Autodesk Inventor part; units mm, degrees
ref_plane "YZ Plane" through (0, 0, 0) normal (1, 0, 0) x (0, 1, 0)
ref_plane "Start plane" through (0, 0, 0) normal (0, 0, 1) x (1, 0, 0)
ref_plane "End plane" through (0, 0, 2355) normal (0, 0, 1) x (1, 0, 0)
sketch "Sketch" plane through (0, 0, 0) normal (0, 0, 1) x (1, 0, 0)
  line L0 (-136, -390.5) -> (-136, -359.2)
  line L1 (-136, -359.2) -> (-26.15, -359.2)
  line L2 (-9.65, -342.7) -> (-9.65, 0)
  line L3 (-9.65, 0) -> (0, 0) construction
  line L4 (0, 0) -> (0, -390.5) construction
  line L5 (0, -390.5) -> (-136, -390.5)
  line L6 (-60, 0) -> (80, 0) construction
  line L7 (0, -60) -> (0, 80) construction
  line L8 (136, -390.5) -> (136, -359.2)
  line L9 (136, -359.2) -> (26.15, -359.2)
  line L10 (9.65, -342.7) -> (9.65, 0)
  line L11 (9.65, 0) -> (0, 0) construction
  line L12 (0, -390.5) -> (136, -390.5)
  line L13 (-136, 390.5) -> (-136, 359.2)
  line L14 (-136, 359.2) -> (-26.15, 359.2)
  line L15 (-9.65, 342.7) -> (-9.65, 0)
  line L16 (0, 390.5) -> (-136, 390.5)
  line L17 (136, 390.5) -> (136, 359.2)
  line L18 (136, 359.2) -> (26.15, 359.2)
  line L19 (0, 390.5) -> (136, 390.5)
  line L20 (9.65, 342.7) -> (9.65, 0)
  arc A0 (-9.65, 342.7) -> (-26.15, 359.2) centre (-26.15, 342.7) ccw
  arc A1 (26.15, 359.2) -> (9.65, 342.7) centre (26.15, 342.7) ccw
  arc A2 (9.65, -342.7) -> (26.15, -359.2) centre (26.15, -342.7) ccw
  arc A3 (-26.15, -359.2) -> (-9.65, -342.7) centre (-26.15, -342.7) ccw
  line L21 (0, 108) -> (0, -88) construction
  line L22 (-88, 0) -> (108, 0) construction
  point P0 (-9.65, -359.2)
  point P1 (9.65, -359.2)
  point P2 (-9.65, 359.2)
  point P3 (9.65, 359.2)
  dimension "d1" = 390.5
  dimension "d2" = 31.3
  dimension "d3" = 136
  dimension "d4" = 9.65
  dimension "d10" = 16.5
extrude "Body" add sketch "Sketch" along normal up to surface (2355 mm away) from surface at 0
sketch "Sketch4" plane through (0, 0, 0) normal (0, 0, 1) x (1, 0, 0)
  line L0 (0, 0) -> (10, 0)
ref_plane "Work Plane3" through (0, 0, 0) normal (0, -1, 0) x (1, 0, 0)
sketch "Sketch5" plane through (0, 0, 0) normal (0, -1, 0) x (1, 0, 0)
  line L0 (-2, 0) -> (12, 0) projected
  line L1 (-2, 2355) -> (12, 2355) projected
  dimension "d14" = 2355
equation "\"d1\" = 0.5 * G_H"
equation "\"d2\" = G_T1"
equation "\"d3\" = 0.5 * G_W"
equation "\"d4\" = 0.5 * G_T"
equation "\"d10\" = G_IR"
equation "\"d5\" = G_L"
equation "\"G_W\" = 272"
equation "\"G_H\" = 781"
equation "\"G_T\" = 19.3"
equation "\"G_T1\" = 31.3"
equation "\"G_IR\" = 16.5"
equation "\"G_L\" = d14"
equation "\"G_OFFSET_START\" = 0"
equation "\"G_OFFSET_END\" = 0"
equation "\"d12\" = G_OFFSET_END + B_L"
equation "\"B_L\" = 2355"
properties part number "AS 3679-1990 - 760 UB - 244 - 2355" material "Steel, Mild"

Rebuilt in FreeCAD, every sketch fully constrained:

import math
import FreeCAD as App
import Part
import Sketcher
from FreeCAD import Vector
Q = App.Units.Quantity

doc = App.newDocument("Part")
body = doc.addObject("PartDesign::Body", "Body")

sketch1 = body.newObject("Sketcher::SketchObject", "Sketch")
sketch1.AttachmentSupport = (doc.getObject("XY_Plane"), [""])
sketch1.MapMode = "FlatFace"
sketch1.addGeometry([
    Part.LineSegment(Vector(-136, -359.2, 0), Vector(-136, -390.5, 0)),
    Part.LineSegment(Vector(-136, -390.5, 0), Vector(136, -390.5, 0)),
    Part.LineSegment(Vector(136, -390.5, 0), Vector(136, -359.2, 0)),
    Part.LineSegment(Vector(136, -359.2, 0), Vector(26.15, -359.2, 0)),
    Part.ArcOfCircle(Part.Circle(Vector(26.15, -342.7, 0), Vector(0, 0, 1), 16.5), math.radians(180), math.radians(270)),
    Part.LineSegment(Vector(9.65, -342.7, 0), Vector(9.65, 342.7, 0)),
    Part.ArcOfCircle(Part.Circle(Vector(26.15, 342.7, 0), Vector(0, 0, 1), 16.5), math.radians(90), math.radians(180)),
    Part.LineSegment(Vector(26.15, 359.2, 0), Vector(136, 359.2, 0)),
    Part.LineSegment(Vector(136, 359.2, 0), Vector(136, 390.5, 0)),
    Part.LineSegment(Vector(136, 390.5, 0), Vector(-136, 390.5, 0)),
    Part.LineSegment(Vector(-136, 390.5, 0), Vector(-136, 359.2, 0)),
    Part.LineSegment(Vector(-136, 359.2, 0), Vector(-26.15, 359.2, 0)),
    Part.ArcOfCircle(Part.Circle(Vector(-26.15, 342.7, 0), Vector(0, 0, 1), 16.5), math.radians(0), math.radians(90)),
    Part.LineSegment(Vector(-9.65, 342.7, 0), Vector(-9.65, -342.7, 0)),
    Part.ArcOfCircle(Part.Circle(Vector(-26.15, -342.7, 0), Vector(0, 0, 1), 16.5), math.radians(-90), math.radians(0)),
    Part.LineSegment(Vector(-26.15, -359.2, 0), Vector(-136, -359.2, 0)),
], False)
sketch1.addConstraint([
    Sketcher.Constraint("Coincident", 0, 2, 1, 1),
    Sketcher.Constraint("Coincident", 1, 2, 2, 1),
    Sketcher.Constraint("Coincident", 2, 2, 3, 1),
    Sketcher.Constraint("Tangent", 3, 2, 4, 2),
    Sketcher.Constraint("Tangent", 4, 1, 5, 1),
    Sketcher.Constraint("Tangent", 5, 2, 6, 2),
    Sketcher.Constraint("Tangent", 6, 1, 7, 1),
    Sketcher.Constraint("Coincident", 7, 2, 8, 1),
    Sketcher.Constraint("Coincident", 8, 2, 9, 1),
    Sketcher.Constraint("Coincident", 9, 2, 10, 1),
    Sketcher.Constraint("Coincident", 10, 2, 11, 1),
    Sketcher.Constraint("Tangent", 11, 2, 12, 2),
    Sketcher.Constraint("Tangent", 12, 1, 13, 1),
    Sketcher.Constraint("Tangent", 13, 2, 14, 2),
    Sketcher.Constraint("Tangent", 14, 1, 15, 1),
    Sketcher.Constraint("Coincident", 15, 2, 0, 1),
    Sketcher.Constraint("Vertical", 0),
    Sketcher.Constraint("Horizontal", 1),
    Sketcher.Constraint("Vertical", 2),
    Sketcher.Constraint("Horizontal", 3),
    Sketcher.Constraint("Vertical", 5),
    Sketcher.Constraint("Horizontal", 7),
    Sketcher.Constraint("Vertical", 8),
    Sketcher.Constraint("Horizontal", 9),
    Sketcher.Constraint("Vertical", 10),
    Sketcher.Constraint("Horizontal", 11),
    Sketcher.Constraint("Vertical", 13),
    Sketcher.Constraint("Horizontal", 15),
    Sketcher.Constraint("Equal", 4, 6),
    Sketcher.Constraint("Equal", 6, 12),
    Sketcher.Constraint("Equal", 12, 14),
    Sketcher.Constraint("Symmetric", 4, 3, 12, 3, -1, 1),
    Sketcher.Constraint("Symmetric", 0, 2, 8, 2, -1, 1),
    Sketcher.Constraint("Symmetric", 7, 2, 10, 2, -2),
    Sketcher.Constraint("Symmetric", 2, 2, 15, 2, -2),
    Sketcher.Constraint("Radius", 4, Q("16.5 mm")),
    Sketcher.Constraint("DistanceY", 0, 2, 0, 1, Q("31.3 mm")),
    Sketcher.Constraint("DistanceX", 0, 2, -1, 1, Q("136 mm")),
    Sketcher.Constraint("DistanceY", 0, 2, -1, 1, Q("390.5 mm")),
    Sketcher.Constraint("DistanceX", -1, 1, 4, 1, Q("9.65 mm")),
])
pad1 = body.newObject("PartDesign::Pad", "Pad")
pad1.Profile = sketch1
pad1.Length = 2355

doc.recompute()
